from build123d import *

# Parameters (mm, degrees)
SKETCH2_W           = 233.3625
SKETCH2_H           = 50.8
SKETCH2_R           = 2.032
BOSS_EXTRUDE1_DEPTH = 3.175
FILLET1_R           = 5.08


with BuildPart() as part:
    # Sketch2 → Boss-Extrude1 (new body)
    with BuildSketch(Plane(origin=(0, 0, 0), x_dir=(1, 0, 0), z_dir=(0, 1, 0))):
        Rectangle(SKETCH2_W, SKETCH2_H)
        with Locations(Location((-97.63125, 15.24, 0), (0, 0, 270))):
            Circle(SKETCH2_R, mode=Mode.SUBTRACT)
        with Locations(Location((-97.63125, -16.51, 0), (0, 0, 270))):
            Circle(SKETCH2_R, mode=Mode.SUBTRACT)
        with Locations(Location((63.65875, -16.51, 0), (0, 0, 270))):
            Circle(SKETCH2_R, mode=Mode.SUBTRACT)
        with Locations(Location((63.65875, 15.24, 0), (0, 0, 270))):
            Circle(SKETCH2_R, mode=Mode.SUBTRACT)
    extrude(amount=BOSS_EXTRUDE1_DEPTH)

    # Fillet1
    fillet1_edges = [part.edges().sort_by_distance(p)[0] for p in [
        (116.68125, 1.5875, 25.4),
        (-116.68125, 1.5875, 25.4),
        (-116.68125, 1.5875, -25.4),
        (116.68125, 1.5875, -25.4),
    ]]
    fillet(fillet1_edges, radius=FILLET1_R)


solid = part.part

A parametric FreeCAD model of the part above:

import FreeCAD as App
import Part
import Sketcher

V = App.Vector
Q = App.Units.Quantity


def edges_at(feature, points):
    """Names of the edges that pass closest to the given points."""
    edges = feature.Shape.Edges
    near = lambda p: min(range(len(edges)), key=lambda i: edges[i].distToShape(Part.Vertex(*p))[0])
    return sorted({f"Edge{near(p) + 1}" for p in points})


def add_polygon(sketch, points):
    """Adds a closed chain of lines whose ends are joined by coincident constraints."""
    first, n = sketch.GeometryCount, len(points)
    for a, b in zip(points, points[1:] + points[:1]):
        sketch.addGeometry(Part.LineSegment(App.Vector(*a, 0), App.Vector(*b, 0)), False)
    for i in range(n):
        sketch.addConstraint(Sketcher.Constraint("Coincident", first + i, 2, first + (i + 1) % n, 1))

doc = App.newDocument("Part")
params = doc.addObject("Spreadsheet::Sheet", "Params")
for row, (alias, value) in enumerate([
    ("sketch1_diameter", "0.16 in"),
    ("sketch1_height", "2 in"),
    ("sketch1_width", "9.1875 in"),
    ("pad1_length", "0.125 in"),
    ("fillet_radius", "0.2 in"),
], start=1):
    params.set(f"A{row}", alias)
    params.set(f"B{row}", "=" + value)
    params.setAlias(f"B{row}", alias)

body = doc.addObject("PartDesign::Body", "Body")

sketch1 = doc.addObject("Sketcher::SketchObject", "Sketch")
body.addObject(sketch1)
sketch1.AttachmentSupport = (doc.XZ_Plane, [""])
sketch1.MapMode = "FlatFace"
add_polygon(sketch1, [(-116.68125, -25.4), (-116.68125, 25.4), (116.68125, 25.4), (116.68125, -25.4)])
sketch1.addGeometry(Part.Circle(V(-97.63125, 16.51, 0), V(0, 0, 1), 2.032), False)
sketch1.addGeometry(Part.Circle(V(63.65875, 16.51, 0), V(0, 0, 1), 2.032), False)
sketch1.addGeometry(Part.Circle(V(-97.63125, -15.24, 0), V(0, 0, 1), 2.032), False)
sketch1.addGeometry(Part.Circle(V(63.65875, -15.24, 0), V(0, 0, 1), 2.032), False)
sketch1.addConstraint([
    Sketcher.Constraint("Vertical", 0),
    Sketcher.Constraint("Horizontal", 1),
    Sketcher.Constraint("Vertical", 2),
    Sketcher.Constraint("Horizontal", 3),
    Sketcher.Constraint("Equal", 4, 5),
    Sketcher.Constraint("Equal", 5, 6),
    Sketcher.Constraint("Equal", 6, 7),
    Sketcher.Constraint("Symmetric", 0, 2, 2, 2, -1, 1),
    Sketcher.Constraint("Horizontal", 4, 3, 5, 3),
    Sketcher.Constraint("Horizontal", 6, 3, 7, 3),
    Sketcher.Constraint("Vertical", 4, 3, 6, 3),
    Sketcher.Constraint("Vertical", 5, 3, 7, 3),
    Sketcher.Constraint("Diameter", 4, Q("0.16 in")),
    Sketcher.Constraint("DistanceY", 0, 1, 0, 2, Q("2 in")),
    Sketcher.Constraint("DistanceY", 6, 3, -1, 1, Q("0.6 in")),
    Sketcher.Constraint("DistanceX", 0, 2, 5, 3, Q("7.1 in")),
    Sketcher.Constraint("DistanceX", 1, 1, 1, 2, Q("9.1875 in")),
    Sketcher.Constraint("DistanceY", -1, 1, 4, 3, Q("0.65 in")),
    Sketcher.Constraint("DistanceX", 4, 3, 5, 3, Q("6.35 in")),
])
sketch1.setExpression("Constraints[16]", "Params.sketch1_diameter")
sketch1.setExpression("Constraints[17]", "Params.sketch1_height")
sketch1.setExpression("Constraints[20]", "Params.sketch1_width")
pad1 = doc.addObject("PartDesign::Pad", "Pad")
body.addObject(pad1)
pad1.Profile = sketch1
pad1.setExpression("Length", "Params.pad1_length")
pad1.Reversed = True
doc.recompute()

fillet = doc.addObject("PartDesign::Fillet", "Fillet")
body.addObject(fillet)
fillet.Base = (pad1, edges_at(pad1, [
    (116.681, 1.587, 25.4),
    (-116.681, 1.587, 25.4),
    (-116.681, 1.587, -25.4),
    (116.681, 1.587, -25.4),
]))
fillet.setExpression("Radius", "Params.fillet_radius")

doc.recompute()
